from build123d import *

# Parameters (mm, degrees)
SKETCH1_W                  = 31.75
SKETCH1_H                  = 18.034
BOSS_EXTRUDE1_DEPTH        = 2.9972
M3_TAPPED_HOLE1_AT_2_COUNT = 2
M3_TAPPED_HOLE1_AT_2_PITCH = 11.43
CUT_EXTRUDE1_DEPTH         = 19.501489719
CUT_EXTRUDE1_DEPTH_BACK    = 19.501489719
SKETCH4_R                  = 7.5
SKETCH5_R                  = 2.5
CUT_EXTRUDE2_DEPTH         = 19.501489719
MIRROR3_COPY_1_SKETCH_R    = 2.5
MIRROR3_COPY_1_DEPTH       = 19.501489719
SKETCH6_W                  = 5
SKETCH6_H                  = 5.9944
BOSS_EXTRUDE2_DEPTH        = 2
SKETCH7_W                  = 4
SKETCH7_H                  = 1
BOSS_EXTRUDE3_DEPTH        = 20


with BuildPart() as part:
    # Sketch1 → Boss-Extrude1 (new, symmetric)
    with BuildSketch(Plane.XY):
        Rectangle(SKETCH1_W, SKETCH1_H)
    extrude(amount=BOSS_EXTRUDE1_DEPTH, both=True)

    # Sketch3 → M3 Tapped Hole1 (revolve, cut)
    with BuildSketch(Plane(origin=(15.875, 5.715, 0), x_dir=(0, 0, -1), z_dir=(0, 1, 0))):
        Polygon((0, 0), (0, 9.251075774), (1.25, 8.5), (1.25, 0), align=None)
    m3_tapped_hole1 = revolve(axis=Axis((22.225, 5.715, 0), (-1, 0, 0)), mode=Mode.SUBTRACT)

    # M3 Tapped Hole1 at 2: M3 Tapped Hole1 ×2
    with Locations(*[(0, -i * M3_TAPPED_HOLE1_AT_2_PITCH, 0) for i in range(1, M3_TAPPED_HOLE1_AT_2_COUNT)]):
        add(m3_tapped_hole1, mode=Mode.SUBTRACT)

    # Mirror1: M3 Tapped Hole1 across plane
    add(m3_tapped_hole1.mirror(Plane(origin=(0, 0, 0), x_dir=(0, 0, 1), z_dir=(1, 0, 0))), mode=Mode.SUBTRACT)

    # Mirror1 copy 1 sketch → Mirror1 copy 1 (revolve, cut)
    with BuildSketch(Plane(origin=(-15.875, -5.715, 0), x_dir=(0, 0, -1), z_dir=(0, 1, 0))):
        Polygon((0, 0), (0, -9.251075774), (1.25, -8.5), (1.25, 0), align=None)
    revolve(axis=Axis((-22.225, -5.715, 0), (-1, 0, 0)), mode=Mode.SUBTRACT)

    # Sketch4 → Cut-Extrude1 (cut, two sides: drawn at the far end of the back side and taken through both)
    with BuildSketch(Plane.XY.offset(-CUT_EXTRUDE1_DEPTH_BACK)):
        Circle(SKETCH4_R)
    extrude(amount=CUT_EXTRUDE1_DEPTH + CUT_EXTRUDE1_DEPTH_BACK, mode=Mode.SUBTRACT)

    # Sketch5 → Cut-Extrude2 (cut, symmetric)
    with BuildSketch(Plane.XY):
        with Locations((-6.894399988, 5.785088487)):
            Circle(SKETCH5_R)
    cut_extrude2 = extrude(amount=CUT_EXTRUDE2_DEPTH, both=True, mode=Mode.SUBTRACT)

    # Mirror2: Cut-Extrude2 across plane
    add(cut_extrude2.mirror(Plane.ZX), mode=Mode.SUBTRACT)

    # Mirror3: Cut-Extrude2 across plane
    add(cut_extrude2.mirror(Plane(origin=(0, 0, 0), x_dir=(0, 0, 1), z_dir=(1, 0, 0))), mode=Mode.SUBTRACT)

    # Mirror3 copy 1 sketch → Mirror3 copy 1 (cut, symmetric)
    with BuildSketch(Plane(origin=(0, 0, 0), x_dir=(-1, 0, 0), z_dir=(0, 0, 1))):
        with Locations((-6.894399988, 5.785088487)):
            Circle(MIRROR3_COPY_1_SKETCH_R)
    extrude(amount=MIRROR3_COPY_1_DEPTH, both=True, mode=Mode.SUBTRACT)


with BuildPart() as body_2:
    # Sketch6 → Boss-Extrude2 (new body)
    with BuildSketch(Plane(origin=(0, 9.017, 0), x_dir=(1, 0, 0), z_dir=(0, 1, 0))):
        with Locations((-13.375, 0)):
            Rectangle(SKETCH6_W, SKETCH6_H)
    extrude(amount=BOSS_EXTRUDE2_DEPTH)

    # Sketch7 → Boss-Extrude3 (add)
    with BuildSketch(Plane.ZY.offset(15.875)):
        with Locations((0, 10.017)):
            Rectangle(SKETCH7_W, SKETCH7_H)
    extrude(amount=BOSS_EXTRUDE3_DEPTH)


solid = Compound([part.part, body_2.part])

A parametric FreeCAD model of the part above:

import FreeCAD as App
import Part
import Sketcher
from FreeCAD import Vector
Q = App.Units.Quantity

doc = App.newDocument("Part")
body = doc.addObject("PartDesign::Body", "Body")

# Sketch on XY plane
sketch1 = body.newObject("Sketcher::SketchObject", "Sketch")
sketch1.AttachmentSupport = (doc.getObject("XY_Plane"), [""])
sketch1.MapMode = "FlatFace"
sketch1.addGeometry([
    Part.LineSegment(Vector(-15.875, 9.017, 0), Vector(-15.875, -9.017, 0)),
    Part.LineSegment(Vector(-15.875, -9.017, 0), Vector(15.875, -9.017, 0)),
    Part.LineSegment(Vector(15.875, -9.017, 0), Vector(15.875, 9.017, 0)),
    Part.LineSegment(Vector(15.875, 9.017, 0), Vector(-15.875, 9.017, 0)),
], False)
sketch1.addConstraint([
    Sketcher.Constraint("Coincident", 0, 2, 1, 1),
    Sketcher.Constraint("Coincident", 1, 2, 2, 1),
    Sketcher.Constraint("Coincident", 2, 2, 3, 1),
    Sketcher.Constraint("Coincident", 3, 2, 0, 1),
    Sketcher.Constraint("Vertical", 0),
    Sketcher.Constraint("Horizontal", 1),
    Sketcher.Constraint("Vertical", 2),
    Sketcher.Constraint("Horizontal", 3),
    Sketcher.Constraint("Symmetric", 0, 2, 2, 2, -1, 1),
    Sketcher.Constraint("DistanceX", 1, 1, 1, 2, Q("31.75 mm")),
    Sketcher.Constraint("DistanceY", 0, 2, 0, 1, Q("18.034 mm")),
])
pad1 = body.newObject("PartDesign::Pad", "Pad")
pad1.Profile = sketch1
pad1.Length = 5.9944
pad1.Midplane = True

# Sketch on XZ plane
sketch2 = body.newObject("Sketcher::SketchObject", "Sketch001")
sketch2.AttachmentSupport = (doc.getObject("XZ_Plane"), [""])
sketch2.MapMode = "FlatFace"
sketch2.AttachmentOffset = App.Placement(Vector(0, 0, -5.715), App.Rotation())
sketch2.addGeometry([
    Part.LineSegment(Vector(6.623924, 0, 0), Vector(15.875, 0, 0)),
    Part.LineSegment(Vector(15.875, 0, 0), Vector(15.875, -1.25, 0)),
    Part.LineSegment(Vector(15.875, -1.25, 0), Vector(7.375, -1.25, 0)),
    Part.LineSegment(Vector(7.375, -1.25, 0), Vector(6.623924, 0, 0)),
], False)
sketch2.addConstraint([
    Sketcher.Constraint("Coincident", 0, 2, 1, 1),
    Sketcher.Constraint("Coincident", 1, 2, 2, 1),
    Sketcher.Constraint("Coincident", 2, 2, 3, 1),
    Sketcher.Constraint("Coincident", 3, 2, 0, 1),
    Sketcher.Constraint("Horizontal", 0),
    Sketcher.Constraint("Vertical", 1),
    Sketcher.Constraint("Horizontal", 2),
    Sketcher.Constraint("PointOnObject", 0, 2, -1),
    Sketcher.Constraint("Angle", 3, Q("121 deg")),
    Sketcher.Constraint("DistanceX", 2, 2, 2, 1, Q("8.5 mm")),
    Sketcher.Constraint("DistanceY", 1, 2, 1, 1, Q("1.25 mm")),
    Sketcher.Constraint("DistanceX", -1, 1, 0, 2, Q("15.875 mm")),
])
groove = body.newObject("PartDesign::Groove", "Groove")
groove.Profile = sketch2
groove.ReferenceAxis = (sketch2, ["H_Axis"])
groove.Angle = 360
doc.recompute()

linearpattern = body.newObject("PartDesign::LinearPattern", "LinearPattern")
linearpattern.Originals = [groove]
linearpattern.Direction = (doc.getObject("Y_Axis"), [""])
linearpattern.Mode = "offset"
linearpattern.Offset = 11.43
linearpattern.Occurrences = 2
linearpattern.Reversed = True
body.Tip = linearpattern
doc.recompute()

mirrored = body.newObject("PartDesign::Mirrored", "Mirrored")
mirrored.Originals = [groove]
mirrored.MirrorPlane = (doc.getObject("YZ_Plane"), [""])
body.Tip = mirrored

# Sketch on XZ plane
sketch3 = body.newObject("Sketcher::SketchObject", "Sketch002")
sketch3.AttachmentSupport = (doc.getObject("XZ_Plane"), [""])
sketch3.MapMode = "FlatFace"
sketch3.AttachmentOffset = App.Placement(Vector(0, 0, 5.715), App.Rotation())
sketch3.addGeometry([
    Part.LineSegment(Vector(-15.875, 0, 0), Vector(-6.623924, 0, 0)),
    Part.LineSegment(Vector(-6.623924, 0, 0), Vector(-7.375, -1.25, 0)),
    Part.LineSegment(Vector(-7.375, -1.25, 0), Vector(-15.875, -1.25, 0)),
    Part.LineSegment(Vector(-15.875, -1.25, 0), Vector(-15.875, 0, 0)),
], False)
sketch3.addConstraint([
    Sketcher.Constraint("Coincident", 0, 2, 1, 1),
    Sketcher.Constraint("Coincident", 1, 2, 2, 1),
    Sketcher.Constraint("Coincident", 2, 2, 3, 1),
    Sketcher.Constraint("Coincident", 3, 2, 0, 1),
    Sketcher.Constraint("Horizontal", 0),
    Sketcher.Constraint("Horizontal", 2),
    Sketcher.Constraint("Vertical", 3),
    Sketcher.Constraint("PointOnObject", 0, 2, -1),
    Sketcher.Constraint("Angle", 1, Q("-121 deg")),
    Sketcher.Constraint("DistanceX", 2, 2, 2, 1, Q("8.5 mm")),
    Sketcher.Constraint("DistanceY", 3, 1, 3, 2, Q("1.25 mm")),
    Sketcher.Constraint("DistanceX", 1, 2, -1, 1, Q("7.375 mm")),
])
groove2 = body.newObject("PartDesign::Groove", "Groove001")
groove2.Profile = sketch3
groove2.ReferenceAxis = (sketch3, ["H_Axis"])
groove2.Angle = 360

# Sketch on XY plane
sketch4 = body.newObject("Sketcher::SketchObject", "Sketch003")
sketch4.AttachmentSupport = (doc.getObject("XY_Plane"), [""])
sketch4.MapMode = "FlatFace"
sketch4.addGeometry(Part.Circle(Vector(0, 0, 0), Vector(0, 0, 1), 7.5), False)
sketch4.addConstraint([
    Sketcher.Constraint("Coincident", 0, 3, -1, 1),
    Sketcher.Constraint("Diameter", 0, Q("15 mm")),
])
pocket1 = body.newObject("PartDesign::Pocket", "Pocket")
pocket1.Profile = sketch4
pocket1.Type = "ThroughAll"
pocket1.Midplane = True

# Sketch on XY plane
sketch5 = body.newObject("Sketcher::SketchObject", "Sketch004")
sketch5.AttachmentSupport = (doc.getObject("XY_Plane"), [""])
sketch5.MapMode = "FlatFace"
sketch5.addGeometry(Part.Circle(Vector(-6.8944, 5.785088, 0), Vector(0, 0, 1), 2.5), False)
sketch5.addConstraint([
    Sketcher.Constraint("Diameter", 0, Q("5 mm")),
    Sketcher.Constraint("DistanceX", 0, 3, -1, 1, Q("6.8944 mm")),
    Sketcher.Constraint("DistanceY", -1, 1, 0, 3, Q("5.785088 mm")),
])
pocket2 = body.newObject("PartDesign::Pocket", "Pocket001")
pocket2.Profile = sketch5
pocket2.Length = 39.002979
pocket2.Midplane = True
doc.recompute()

mirrored2 = body.newObject("PartDesign::Mirrored", "Mirrored001")
mirrored2.Originals = [pocket2]
mirrored2.MirrorPlane = (doc.getObject("XZ_Plane"), [""])
body.Tip = mirrored2
doc.recompute()

mirrored3 = body.newObject("PartDesign::Mirrored", "Mirrored002")
mirrored3.Originals = [pocket2]
mirrored3.MirrorPlane = (doc.getObject("YZ_Plane"), [""])
body.Tip = mirrored3

# Sketch on XY plane
sketch6 = body.newObject("Sketcher::SketchObject", "Sketch005")
sketch6.AttachmentSupport = (doc.getObject("XY_Plane"), [""])
sketch6.MapMode = "FlatFace"
sketch6.addGeometry(Part.Circle(Vector(6.8944, -5.785088, 0), Vector(0, 0, 1), 2.5), False)
sketch6.addConstraint([
    Sketcher.Constraint("Diameter", 0, Q("5 mm")),
    Sketcher.Constraint("DistanceX", -1, 1, 0, 3, Q("6.8944 mm")),
    Sketcher.Constraint("DistanceY", 0, 3, -1, 1, Q("5.785088 mm")),
])
pocket3 = body.newObject("PartDesign::Pocket", "Pocket002")
pocket3.Profile = sketch6
pocket3.Length = 39.002979
pocket3.Midplane = True
body2 = doc.addObject("PartDesign::Body", "Body001")

# Sketch on XZ plane
sketch7 = body2.newObject("Sketcher::SketchObject", "Sketch006")
sketch7.AttachmentSupport = (doc.getObject("XZ_Plane001"), [""])
sketch7.MapMode = "FlatFace"
sketch7.AttachmentOffset = App.Placement(Vector(0, 0, -9.017), App.Rotation())
sketch7.addGeometry([
    Part.LineSegment(Vector(-15.875, -2.9972, 0), Vector(-15.875, 2.9972, 0)),
    Part.LineSegment(Vector(-15.875, 2.9972, 0), Vector(-10.875, 2.9972, 0)),
    Part.LineSegment(Vector(-10.875, 2.9972, 0), Vector(-10.875, -2.9972, 0)),
    Part.LineSegment(Vector(-10.875, -2.9972, 0), Vector(-15.875, -2.9972, 0)),
], False)
sketch7.addConstraint([
    Sketcher.Constraint("Coincident", 0, 2, 1, 1),
    Sketcher.Constraint("Coincident", 1, 2, 2, 1),
    Sketcher.Constraint("Coincident", 2, 2, 3, 1),
    Sketcher.Constraint("Coincident", 3, 2, 0, 1),
    Sketcher.Constraint("Vertical", 0),
    Sketcher.Constraint("Horizontal", 1),
    Sketcher.Constraint("Vertical", 2),
    Sketcher.Constraint("Horizontal", 3),
    Sketcher.Constraint("DistanceX", 1, 1, 1, 2, Q("5 mm")),
    Sketcher.Constraint("DistanceY", 0, 1, 0, 2, Q("5.9944 mm")),
    Sketcher.Constraint("DistanceX", 0, 2, -1, 1, Q("15.875 mm")),
    Sketcher.Constraint("DistanceY", -1, 1, 0, 2, Q("2.9972 mm")),
])
pad2 = body2.newObject("PartDesign::Pad", "Pad001")
pad2.Profile = sketch7
pad2.Length = 2
pad2.Reversed = True

# Sketch on YZ plane
sketch8 = body2.newObject("Sketcher::SketchObject", "Sketch007")
sketch8.AttachmentSupport = (doc.getObject("YZ_Plane001"), [""])
sketch8.MapMode = "FlatFace"
sketch8.AttachmentOffset = App.Placement(Vector(0, 0, -15.875), App.Rotation())
sketch8.addGeometry([
    Part.LineSegment(Vector(10.517, -2, 0), Vector(9.517, -2, 0)),
    Part.LineSegment(Vector(9.517, -2, 0), Vector(9.517, 2, 0)),
    Part.LineSegment(Vector(9.517, 2, 0), Vector(10.517, 2, 0)),
    Part.LineSegment(Vector(10.517, 2, 0), Vector(10.517, -2, 0)),
], False)
sketch8.addConstraint([
    Sketcher.Constraint("Coincident", 0, 2, 1, 1),
    Sketcher.Constraint("Coincident", 1, 2, 2, 1),
    Sketcher.Constraint("Coincident", 2, 2, 3, 1),
    Sketcher.Constraint("Coincident", 3, 2, 0, 1),
    Sketcher.Constraint("Horizontal", 0),
    Sketcher.Constraint("Vertical", 1),
    Sketcher.Constraint("Horizontal", 2),
    Sketcher.Constraint("Vertical", 3),
    Sketcher.Constraint("DistanceX", 0, 2, 0, 1, Q("1 mm")),
    Sketcher.Constraint("DistanceY", 1, 1, 1, 2, Q("4 mm")),
    Sketcher.Constraint("DistanceY", 0, 2, -1, 1, Q("2 mm")),
    Sketcher.Constraint("DistanceX", -1, 1, 0, 2, Q("9.517 mm")),
])
pad3 = body2.newObject("PartDesign::Pad", "Pad002")
pad3.Profile = sketch8
pad3.Length = 20
pad3.Reversed = True

doc.recompute()
